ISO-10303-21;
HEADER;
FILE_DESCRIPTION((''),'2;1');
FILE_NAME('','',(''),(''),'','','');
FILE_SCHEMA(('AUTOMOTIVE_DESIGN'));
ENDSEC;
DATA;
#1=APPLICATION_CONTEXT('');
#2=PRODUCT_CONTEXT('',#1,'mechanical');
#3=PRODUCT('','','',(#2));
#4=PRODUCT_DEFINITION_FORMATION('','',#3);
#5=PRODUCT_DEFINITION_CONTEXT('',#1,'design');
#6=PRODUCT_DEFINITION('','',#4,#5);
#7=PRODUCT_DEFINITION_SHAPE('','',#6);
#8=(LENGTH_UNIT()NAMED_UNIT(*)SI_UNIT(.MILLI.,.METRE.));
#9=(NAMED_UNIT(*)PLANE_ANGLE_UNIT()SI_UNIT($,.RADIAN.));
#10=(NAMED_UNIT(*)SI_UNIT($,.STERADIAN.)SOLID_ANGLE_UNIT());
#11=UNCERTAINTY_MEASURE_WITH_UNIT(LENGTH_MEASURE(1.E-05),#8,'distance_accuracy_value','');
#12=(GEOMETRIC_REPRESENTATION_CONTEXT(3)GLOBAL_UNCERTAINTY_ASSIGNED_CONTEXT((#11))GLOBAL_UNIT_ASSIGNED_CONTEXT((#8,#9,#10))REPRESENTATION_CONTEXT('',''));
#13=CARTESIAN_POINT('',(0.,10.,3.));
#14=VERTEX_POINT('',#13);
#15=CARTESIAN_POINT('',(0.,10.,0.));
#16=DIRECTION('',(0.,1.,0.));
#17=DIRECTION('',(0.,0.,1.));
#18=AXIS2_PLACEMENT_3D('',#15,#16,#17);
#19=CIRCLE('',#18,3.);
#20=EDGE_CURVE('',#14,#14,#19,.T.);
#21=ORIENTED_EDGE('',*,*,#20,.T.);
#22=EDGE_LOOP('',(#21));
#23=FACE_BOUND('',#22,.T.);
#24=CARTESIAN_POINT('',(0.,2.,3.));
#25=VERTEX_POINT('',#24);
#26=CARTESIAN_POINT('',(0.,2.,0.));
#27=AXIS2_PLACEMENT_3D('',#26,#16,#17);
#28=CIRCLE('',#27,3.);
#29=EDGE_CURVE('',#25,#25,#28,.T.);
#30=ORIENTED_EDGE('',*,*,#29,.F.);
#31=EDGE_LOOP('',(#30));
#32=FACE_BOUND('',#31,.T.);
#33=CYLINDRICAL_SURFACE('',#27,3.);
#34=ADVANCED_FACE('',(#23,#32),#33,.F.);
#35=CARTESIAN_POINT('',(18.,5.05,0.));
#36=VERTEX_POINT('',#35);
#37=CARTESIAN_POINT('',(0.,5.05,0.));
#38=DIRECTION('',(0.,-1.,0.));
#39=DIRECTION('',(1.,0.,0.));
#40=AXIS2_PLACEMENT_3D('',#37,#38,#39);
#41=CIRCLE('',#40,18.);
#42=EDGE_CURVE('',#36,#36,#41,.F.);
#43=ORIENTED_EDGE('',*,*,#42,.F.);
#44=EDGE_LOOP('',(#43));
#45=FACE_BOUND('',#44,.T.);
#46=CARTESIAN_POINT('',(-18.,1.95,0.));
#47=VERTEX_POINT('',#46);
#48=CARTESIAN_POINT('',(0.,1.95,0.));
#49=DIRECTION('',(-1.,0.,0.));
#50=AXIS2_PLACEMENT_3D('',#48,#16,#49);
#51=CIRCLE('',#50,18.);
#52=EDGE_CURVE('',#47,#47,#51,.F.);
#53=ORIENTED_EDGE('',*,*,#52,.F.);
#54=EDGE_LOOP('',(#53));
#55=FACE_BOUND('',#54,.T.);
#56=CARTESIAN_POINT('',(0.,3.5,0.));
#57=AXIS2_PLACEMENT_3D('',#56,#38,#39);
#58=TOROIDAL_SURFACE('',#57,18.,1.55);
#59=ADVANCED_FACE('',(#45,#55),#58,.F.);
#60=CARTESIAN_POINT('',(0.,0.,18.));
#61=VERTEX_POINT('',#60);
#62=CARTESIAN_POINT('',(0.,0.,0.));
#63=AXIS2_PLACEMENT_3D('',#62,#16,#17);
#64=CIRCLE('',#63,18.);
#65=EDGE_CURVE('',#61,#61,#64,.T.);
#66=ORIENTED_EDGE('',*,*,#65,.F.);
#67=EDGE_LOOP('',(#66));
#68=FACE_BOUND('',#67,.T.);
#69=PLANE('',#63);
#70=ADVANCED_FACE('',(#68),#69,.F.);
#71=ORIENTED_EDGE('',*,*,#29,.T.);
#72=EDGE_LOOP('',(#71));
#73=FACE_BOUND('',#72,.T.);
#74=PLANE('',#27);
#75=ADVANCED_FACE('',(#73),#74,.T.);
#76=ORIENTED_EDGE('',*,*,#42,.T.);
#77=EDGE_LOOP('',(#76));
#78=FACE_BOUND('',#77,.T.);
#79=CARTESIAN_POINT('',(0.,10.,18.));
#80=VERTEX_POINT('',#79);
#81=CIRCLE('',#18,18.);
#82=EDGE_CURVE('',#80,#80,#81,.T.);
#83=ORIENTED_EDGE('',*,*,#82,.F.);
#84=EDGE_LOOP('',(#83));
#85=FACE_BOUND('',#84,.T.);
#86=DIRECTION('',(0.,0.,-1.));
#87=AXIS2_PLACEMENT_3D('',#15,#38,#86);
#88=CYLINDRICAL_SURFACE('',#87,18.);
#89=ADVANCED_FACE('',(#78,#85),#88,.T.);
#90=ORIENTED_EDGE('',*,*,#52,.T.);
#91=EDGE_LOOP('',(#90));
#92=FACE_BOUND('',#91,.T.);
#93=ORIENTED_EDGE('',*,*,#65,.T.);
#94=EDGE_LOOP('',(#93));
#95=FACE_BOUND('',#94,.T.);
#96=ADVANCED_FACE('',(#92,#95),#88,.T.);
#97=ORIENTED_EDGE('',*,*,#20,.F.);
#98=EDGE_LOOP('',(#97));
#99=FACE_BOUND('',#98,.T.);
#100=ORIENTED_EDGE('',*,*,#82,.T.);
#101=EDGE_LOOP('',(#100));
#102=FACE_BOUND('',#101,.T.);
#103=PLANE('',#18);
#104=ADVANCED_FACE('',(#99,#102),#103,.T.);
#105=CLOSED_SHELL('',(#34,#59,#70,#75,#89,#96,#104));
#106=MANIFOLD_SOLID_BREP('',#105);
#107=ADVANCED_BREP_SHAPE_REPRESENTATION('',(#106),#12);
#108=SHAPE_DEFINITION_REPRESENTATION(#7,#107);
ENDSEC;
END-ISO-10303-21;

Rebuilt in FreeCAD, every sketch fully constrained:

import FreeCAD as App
import Part
import Sketcher

V = App.Vector

doc = App.newDocument("Part")
body = doc.addObject("PartDesign::Body", "Body")

# Sketch on XZ plane
sketch1 = body.newObject("Sketcher::SketchObject", "Sketch")
sketch1.AttachmentSupport = (doc.getObject("XZ_Plane"), [""])
sketch1.MapMode = "FlatFace"
sketch1.addGeometry(Part.Circle(V(0, 0, 0), V(0, 0, 1), 18), False)
sketch1.addConstraint([
    Sketcher.Constraint("Coincident", 0, 3, -1, 1),
    Sketcher.Constraint("Diameter", 0, 36.0),
])
pad1 = body.newObject("PartDesign::Pad", "Pad")
pad1.Profile = sketch1
pad1.Length = 10
pad1.Reversed = True

# Sketch on XY plane
sketch2 = body.newObject("Sketcher::SketchObject", "Sketch001")
sketch2.AttachmentSupport = (doc.getObject("XY_Plane"), [""])
sketch2.MapMode = "FlatFace"
sketch2.addGeometry(Part.Circle(V(18, 3.5, 0), V(0, 0, 1), 1.6), False)
sketch2.addConstraint([
    Sketcher.Constraint("Diameter", 0, 3.1),
    Sketcher.Constraint("DistanceX", -1, 1, 0, 3, 18.0),
    Sketcher.Constraint("DistanceY", -1, 1, 0, 3, 3.5),
])
groove = body.newObject("PartDesign::Groove", "Groove")
groove.Profile = sketch2
groove.ReferenceAxis = (sketch2, ["V_Axis"])
groove.Angle = 360

# Sketch on XZ plane
sketch3 = body.newObject("Sketcher::SketchObject", "Sketch002")
sketch3.AttachmentSupport = (doc.getObject("XZ_Plane"), [""])
sketch3.MapMode = "FlatFace"
sketch3.AttachmentOffset = App.Placement(V(0, 0, -10), App.Rotation())
sketch3.addGeometry(Part.Circle(V(0, 0, 0), V(0, 0, 1), 3), False)
sketch3.addConstraint([
    Sketcher.Constraint("Coincident", 0, 3, -1, 1),
    Sketcher.Constraint("Diameter", 0, 6.0),
])
pocket1 = body.newObject("PartDesign::Pocket", "Pocket")
pocket1.Profile = sketch3
pocket1.Length = 8
pocket1.Reversed = True

doc.recompute()
